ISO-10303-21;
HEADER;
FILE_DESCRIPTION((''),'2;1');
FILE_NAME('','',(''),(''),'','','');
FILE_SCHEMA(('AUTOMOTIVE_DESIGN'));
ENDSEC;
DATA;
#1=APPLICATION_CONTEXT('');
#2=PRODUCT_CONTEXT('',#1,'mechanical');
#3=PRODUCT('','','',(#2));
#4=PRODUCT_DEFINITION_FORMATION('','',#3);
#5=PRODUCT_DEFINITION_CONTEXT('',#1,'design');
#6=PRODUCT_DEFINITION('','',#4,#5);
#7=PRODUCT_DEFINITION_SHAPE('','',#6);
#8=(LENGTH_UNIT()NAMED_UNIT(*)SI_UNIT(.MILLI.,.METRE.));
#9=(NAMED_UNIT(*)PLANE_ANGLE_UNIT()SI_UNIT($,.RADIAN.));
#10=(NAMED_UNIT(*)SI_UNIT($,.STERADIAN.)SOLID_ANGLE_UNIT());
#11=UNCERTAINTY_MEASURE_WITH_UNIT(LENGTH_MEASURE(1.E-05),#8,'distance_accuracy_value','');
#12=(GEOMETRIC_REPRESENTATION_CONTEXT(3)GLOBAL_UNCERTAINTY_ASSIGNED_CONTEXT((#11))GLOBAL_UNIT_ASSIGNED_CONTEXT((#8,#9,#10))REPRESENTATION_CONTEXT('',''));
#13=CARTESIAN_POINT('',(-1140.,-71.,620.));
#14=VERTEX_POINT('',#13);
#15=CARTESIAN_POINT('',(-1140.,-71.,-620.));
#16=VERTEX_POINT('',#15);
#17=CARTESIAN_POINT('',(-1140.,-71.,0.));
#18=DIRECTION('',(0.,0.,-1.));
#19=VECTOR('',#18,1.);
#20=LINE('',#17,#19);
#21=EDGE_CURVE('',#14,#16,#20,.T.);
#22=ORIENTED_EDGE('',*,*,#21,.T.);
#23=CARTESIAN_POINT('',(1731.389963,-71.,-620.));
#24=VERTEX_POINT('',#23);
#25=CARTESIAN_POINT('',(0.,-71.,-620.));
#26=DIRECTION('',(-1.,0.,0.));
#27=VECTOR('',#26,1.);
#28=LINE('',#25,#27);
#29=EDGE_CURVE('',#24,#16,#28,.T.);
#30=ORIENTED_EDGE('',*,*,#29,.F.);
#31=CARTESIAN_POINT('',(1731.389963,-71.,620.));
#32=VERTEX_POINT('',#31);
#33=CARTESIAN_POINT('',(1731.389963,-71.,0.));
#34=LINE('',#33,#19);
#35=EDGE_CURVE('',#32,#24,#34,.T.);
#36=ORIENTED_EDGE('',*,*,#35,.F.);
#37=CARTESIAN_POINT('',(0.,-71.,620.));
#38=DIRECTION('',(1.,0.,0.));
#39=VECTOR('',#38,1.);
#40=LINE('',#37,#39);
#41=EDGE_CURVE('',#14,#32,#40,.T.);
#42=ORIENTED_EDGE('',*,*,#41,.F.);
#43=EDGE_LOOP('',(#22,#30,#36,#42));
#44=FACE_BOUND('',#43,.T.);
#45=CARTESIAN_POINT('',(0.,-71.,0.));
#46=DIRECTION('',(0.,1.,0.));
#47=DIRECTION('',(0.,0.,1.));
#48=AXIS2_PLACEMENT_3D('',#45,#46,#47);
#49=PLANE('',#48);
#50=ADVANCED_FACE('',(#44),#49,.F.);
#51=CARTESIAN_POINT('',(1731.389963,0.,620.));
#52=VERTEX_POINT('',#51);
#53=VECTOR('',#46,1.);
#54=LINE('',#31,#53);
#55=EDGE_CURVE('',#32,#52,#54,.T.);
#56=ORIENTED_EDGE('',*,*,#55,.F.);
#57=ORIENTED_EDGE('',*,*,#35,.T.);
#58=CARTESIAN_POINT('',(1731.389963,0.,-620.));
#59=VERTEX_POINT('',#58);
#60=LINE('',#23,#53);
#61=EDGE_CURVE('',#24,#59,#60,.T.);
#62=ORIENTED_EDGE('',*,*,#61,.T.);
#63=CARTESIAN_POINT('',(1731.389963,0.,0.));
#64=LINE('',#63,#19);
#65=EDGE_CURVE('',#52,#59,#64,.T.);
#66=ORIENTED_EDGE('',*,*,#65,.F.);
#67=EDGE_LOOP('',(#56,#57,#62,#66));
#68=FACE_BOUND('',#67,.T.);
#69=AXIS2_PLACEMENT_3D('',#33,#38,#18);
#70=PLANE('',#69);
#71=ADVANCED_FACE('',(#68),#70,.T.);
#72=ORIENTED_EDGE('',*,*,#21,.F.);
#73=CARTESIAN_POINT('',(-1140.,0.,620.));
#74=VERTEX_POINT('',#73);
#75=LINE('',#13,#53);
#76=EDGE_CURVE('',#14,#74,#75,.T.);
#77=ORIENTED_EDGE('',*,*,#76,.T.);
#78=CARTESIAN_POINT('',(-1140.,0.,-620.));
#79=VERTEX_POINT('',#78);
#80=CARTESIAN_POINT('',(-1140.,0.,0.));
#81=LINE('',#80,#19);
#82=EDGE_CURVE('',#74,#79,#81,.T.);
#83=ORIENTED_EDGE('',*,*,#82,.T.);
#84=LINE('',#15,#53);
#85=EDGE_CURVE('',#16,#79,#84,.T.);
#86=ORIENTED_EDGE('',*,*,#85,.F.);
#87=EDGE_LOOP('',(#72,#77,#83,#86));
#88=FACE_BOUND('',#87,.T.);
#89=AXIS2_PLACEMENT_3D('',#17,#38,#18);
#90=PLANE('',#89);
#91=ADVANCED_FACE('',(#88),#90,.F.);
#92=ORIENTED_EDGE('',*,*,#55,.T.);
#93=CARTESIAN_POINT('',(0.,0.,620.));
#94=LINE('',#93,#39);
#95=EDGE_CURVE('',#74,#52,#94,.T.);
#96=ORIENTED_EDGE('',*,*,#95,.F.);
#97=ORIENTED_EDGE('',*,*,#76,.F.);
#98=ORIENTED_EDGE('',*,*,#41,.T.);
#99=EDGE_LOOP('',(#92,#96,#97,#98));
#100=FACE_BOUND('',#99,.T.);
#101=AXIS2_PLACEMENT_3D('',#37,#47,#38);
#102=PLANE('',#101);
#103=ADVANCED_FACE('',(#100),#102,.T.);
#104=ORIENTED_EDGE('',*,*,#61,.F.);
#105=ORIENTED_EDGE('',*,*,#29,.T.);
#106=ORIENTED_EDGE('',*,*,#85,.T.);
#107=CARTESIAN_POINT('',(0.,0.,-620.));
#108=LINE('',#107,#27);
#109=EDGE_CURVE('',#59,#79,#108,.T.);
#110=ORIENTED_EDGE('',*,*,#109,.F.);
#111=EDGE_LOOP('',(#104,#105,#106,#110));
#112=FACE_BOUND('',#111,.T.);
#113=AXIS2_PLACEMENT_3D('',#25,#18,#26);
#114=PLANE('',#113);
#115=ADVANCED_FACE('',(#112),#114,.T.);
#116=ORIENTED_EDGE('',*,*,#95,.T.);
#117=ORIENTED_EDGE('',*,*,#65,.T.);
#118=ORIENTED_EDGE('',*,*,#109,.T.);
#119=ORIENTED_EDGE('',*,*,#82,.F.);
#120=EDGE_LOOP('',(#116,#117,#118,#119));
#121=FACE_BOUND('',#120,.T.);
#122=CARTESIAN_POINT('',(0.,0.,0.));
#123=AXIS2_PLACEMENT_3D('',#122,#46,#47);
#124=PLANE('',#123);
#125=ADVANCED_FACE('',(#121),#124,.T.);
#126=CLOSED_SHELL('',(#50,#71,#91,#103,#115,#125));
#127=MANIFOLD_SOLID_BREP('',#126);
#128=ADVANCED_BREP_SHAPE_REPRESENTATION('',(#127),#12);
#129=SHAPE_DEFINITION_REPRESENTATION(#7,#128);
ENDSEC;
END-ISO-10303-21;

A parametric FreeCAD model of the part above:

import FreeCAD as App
import Part
import Sketcher

V = App.Vector
Q = App.Units.Quantity

doc = App.newDocument("Part")
body = doc.addObject("PartDesign::Body", "Body")

# Sketch on XZ plane
sketch1 = body.newObject("Sketcher::SketchObject", "Sketch")
sketch1.AttachmentSupport = (doc.getObject("XZ_Plane"), [""])
sketch1.MapMode = "FlatFace"
sketch1.addGeometry([
    Part.LineSegment(V(1731.389963, 620, 0), V(1731.389963, -620, 0)),
    Part.LineSegment(V(1731.389963, -620, 0), V(-1140, -620, 0)),
    Part.LineSegment(V(-1140, -620, 0), V(-1140, 620, 0)),
    Part.LineSegment(V(-1140, 620, 0), V(1731.389963, 620, 0)),
], False)
sketch1.addConstraint([
    Sketcher.Constraint("Coincident", 0, 2, 1, 1),
    Sketcher.Constraint("Coincident", 1, 2, 2, 1),
    Sketcher.Constraint("Coincident", 2, 2, 3, 1),
    Sketcher.Constraint("Coincident", 3, 2, 0, 1),
    Sketcher.Constraint("Vertical", 0),
    Sketcher.Constraint("Horizontal", 1),
    Sketcher.Constraint("Vertical", 2),
    Sketcher.Constraint("Horizontal", 3),
    Sketcher.Constraint("DistanceY", 0, 2, 0, 1, Q("1240 mm")),
    Sketcher.Constraint("DistanceY", 0, 2, -1, 1, Q("620 mm")),
    Sketcher.Constraint("DistanceX", 1, 2, -1, 1, Q("1140 mm")),
    Sketcher.Constraint("DistanceX", 1, 2, 1, 1, Q("2871.389963 mm")),
])
pad1 = body.newObject("PartDesign::Pad", "Pad")
pad1.Profile = sketch1
pad1.Length = 71

doc.recompute()
